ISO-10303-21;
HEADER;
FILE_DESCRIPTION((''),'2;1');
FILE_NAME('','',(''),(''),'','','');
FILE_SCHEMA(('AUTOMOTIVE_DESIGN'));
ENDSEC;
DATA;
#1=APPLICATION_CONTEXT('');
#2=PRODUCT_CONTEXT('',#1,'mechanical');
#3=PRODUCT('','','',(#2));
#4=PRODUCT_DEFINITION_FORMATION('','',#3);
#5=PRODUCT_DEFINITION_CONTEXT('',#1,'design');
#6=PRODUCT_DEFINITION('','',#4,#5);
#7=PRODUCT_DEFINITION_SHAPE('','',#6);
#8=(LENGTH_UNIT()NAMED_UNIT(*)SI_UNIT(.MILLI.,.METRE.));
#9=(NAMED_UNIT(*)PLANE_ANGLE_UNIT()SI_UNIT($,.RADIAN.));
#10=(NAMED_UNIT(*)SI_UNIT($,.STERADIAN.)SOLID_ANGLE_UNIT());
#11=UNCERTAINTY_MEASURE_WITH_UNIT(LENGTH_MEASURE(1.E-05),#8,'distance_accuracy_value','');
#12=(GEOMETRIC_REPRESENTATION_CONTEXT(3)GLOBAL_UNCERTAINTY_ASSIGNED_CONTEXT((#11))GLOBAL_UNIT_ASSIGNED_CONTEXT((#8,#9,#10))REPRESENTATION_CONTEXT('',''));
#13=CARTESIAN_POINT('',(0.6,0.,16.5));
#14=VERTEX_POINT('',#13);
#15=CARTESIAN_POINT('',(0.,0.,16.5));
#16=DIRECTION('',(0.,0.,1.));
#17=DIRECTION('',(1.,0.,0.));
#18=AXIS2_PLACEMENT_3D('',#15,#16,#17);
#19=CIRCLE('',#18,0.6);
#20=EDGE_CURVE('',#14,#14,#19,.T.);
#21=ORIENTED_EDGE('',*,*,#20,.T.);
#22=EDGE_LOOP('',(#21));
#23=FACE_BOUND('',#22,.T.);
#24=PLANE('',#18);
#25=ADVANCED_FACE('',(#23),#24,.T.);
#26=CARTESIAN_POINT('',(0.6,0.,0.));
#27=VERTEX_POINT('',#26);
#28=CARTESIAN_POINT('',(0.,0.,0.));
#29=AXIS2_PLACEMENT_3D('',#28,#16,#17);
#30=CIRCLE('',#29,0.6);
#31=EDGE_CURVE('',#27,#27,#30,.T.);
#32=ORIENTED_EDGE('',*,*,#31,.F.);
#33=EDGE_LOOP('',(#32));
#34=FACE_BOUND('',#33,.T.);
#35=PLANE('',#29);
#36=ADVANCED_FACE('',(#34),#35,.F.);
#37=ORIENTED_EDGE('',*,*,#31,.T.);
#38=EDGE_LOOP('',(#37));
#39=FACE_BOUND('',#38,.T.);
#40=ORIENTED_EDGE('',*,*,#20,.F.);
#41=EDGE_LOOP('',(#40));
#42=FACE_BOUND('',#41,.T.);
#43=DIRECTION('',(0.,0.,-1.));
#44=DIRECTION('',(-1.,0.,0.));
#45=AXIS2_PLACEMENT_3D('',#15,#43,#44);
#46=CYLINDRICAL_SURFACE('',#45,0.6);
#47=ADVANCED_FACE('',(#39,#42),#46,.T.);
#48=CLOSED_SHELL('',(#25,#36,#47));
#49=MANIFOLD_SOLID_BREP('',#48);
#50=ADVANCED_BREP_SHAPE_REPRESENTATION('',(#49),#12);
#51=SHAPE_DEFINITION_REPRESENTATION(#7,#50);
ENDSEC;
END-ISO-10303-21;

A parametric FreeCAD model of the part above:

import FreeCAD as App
import Part
import Sketcher

doc = App.newDocument("Part")
body = doc.addObject("PartDesign::Body", "Body")

# Sketch on XY plane
sketch1 = body.newObject("Sketcher::SketchObject", "Sketch")
sketch1.AttachmentSupport = (doc.getObject("XY_Plane"), [""])
sketch1.MapMode = "FlatFace"
sketch1.addGeometry(Part.Circle(App.Vector(0, 0, 0), App.Vector(0, 0, 1), 0.6), False)
sketch1.addConstraint([
    Sketcher.Constraint("Coincident", 0, 3, -1, 1),
    Sketcher.Constraint("Diameter", 0, 1.2),
])
pad1 = body.newObject("PartDesign::Pad", "Pad")
pad1.Profile = sketch1
pad1.Length = 16.5

doc.recompute()
